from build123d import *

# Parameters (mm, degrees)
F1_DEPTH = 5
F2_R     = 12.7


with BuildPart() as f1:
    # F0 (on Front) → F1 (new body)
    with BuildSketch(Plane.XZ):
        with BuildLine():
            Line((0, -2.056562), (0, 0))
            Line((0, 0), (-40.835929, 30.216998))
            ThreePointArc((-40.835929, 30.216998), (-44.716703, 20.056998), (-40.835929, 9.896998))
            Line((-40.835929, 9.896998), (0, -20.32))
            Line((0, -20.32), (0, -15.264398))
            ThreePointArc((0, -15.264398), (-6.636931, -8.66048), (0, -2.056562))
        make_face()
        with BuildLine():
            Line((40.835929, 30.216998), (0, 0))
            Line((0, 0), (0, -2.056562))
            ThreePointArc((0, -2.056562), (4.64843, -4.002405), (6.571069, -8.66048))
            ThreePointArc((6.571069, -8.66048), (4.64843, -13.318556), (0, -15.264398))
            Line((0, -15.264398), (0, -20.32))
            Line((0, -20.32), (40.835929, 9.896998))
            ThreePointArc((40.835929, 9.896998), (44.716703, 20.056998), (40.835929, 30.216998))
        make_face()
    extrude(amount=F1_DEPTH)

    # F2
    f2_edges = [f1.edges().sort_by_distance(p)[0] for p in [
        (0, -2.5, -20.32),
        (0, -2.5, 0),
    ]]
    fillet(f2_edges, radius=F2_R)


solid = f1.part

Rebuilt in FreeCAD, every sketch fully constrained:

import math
import FreeCAD as App
import Part
import Sketcher
Q = App.Units.Quantity


def edges_at(feature, points):
    """Names of the edges that pass closest to the given points."""
    edges = feature.Shape.Edges
    near = lambda p: min(range(len(edges)), key=lambda i: edges[i].distToShape(Part.Vertex(*p))[0])
    return sorted({f"Edge{near(p) + 1}" for p in points})

doc = App.newDocument("Part")
body = doc.addObject("PartDesign::Body", "Body")

sketch1 = body.newObject("Sketcher::SketchObject", "Sketch")
sketch1.AttachmentSupport = (doc.getObject("XZ_Plane"), [""])
sketch1.MapMode = "FlatFace"
sketch1.addGeometry(Part.LineSegment(App.Vector(0, 0, 0), App.Vector(-40.835929, 30.216998, 0)), False)
sketch1.addGeometry(Part.ArcOfCircle(Part.Circle(App.Vector(-29.476701, 20.056998, 0), App.Vector(0, 0, 1), 15.240002), math.radians(138.189692), math.radians(221.810308)), False)
sketch1.addGeometry(Part.LineSegment(App.Vector(-40.835929, 9.896998, 0), App.Vector(0, -20.32, 0)), False)
sketch1.addGeometry(Part.LineSegment(App.Vector(0, -20.32, 0), App.Vector(40.835929, 9.896998, 0)), False)
sketch1.addGeometry(Part.ArcOfCircle(Part.Circle(App.Vector(29.476701, 20.056998, 0), App.Vector(0, 0, 1), 15.240002), math.radians(-41.810308), math.radians(41.810308)), False)
sketch1.addGeometry(Part.LineSegment(App.Vector(40.835929, 30.216998, 0), App.Vector(0, 0, 0)), False)
sketch1.addGeometry(Part.ArcOfCircle(Part.Circle(App.Vector(-0.032931, -8.66048, 0), App.Vector(0, 0, 1), 6.604), math.radians(89.714293), math.radians(270.285707)), False)
sketch1.addGeometry(Part.ArcOfCircle(Part.Circle(App.Vector(-0.032933, -8.660482, 0), App.Vector(0, 0, 1), 6.604002), math.radians(0.000021), math.radians(89.714271)), False)
sketch1.addGeometry(Part.ArcOfCircle(Part.Circle(App.Vector(-0.032932, -8.660479, 0), App.Vector(0, 0, 1), 6.604001), math.radians(-89.714285), math.radians(-0.000006)), False)
sketch1.addConstraint(Sketcher.Constraint("Coincident", 0, 2, 1, 1))
sketch1.addConstraint(Sketcher.Constraint("Coincident", 1, 2, 2, 1))
sketch1.addConstraint(Sketcher.Constraint("Coincident", 2, 2, 3, 1))
sketch1.addConstraint(Sketcher.Constraint("Coincident", 3, 2, 4, 1))
sketch1.addConstraint(Sketcher.Constraint("Coincident", 4, 2, 5, 1))
sketch1.addConstraint(Sketcher.Constraint("Coincident", 5, 2, 0, 1))
sketch1.addConstraint(Sketcher.Constraint("Tangent", 6, 1, 7, 2))
sketch1.addConstraint(Sketcher.Constraint("Tangent", 7, 1, 8, 2))
sketch1.addConstraint(Sketcher.Constraint("Tangent", 8, 1, 6, 2))
sketch1.addConstraint(Sketcher.Constraint("Coincident", 5, 2, -1, 1))
sketch1.addConstraint(Sketcher.Constraint("Equal", 1, 4))
sketch1.addConstraint(Sketcher.Constraint("Symmetric", 1, 3, 4, 3, -2))
sketch1.addConstraint(Sketcher.Constraint("PointOnObject", 2, 2, -2))
sketch1.addConstraint(Sketcher.Constraint("PointOnObject", 6, 1, -2))
sketch1.addConstraint(Sketcher.Constraint("PointOnObject", 8, 1, -2))
sketch1.addConstraint(Sketcher.Constraint("Parallel", 0, 2))
sketch1.addConstraint(Sketcher.Constraint("Parallel", 3, 5))
sketch1.addConstraint(Sketcher.Constraint("Horizontal", 1, 2, 3, 2))
sketch1.addConstraint(Sketcher.Constraint("Horizontal", 8, 3, 7, 1))
sketch1.addConstraint(Sketcher.Constraint("Vertical", 0, 2, 1, 2))
sketch1.addConstraint(Sketcher.Constraint("Radius", 1, Q("0.6000001 in")))
sketch1.addConstraint(Sketcher.Constraint("Radius", 6, Q("0.26 in")))
sketch1.addConstraint(Sketcher.Constraint("Distance", 0, Q("2 in")))
sketch1.addConstraint(Sketcher.Constraint("DistanceY", 2, 2, -1, 1, Q("0.8 in")))
sketch1.addConstraint(Sketcher.Constraint("Angle", 0, Q("143.5 deg")))
sketch1.addConstraint(Sketcher.Constraint("DistanceY", 8, 1, -1, 1, Q("15.264398 mm")))
sketch1.addConstraint(Sketcher.Constraint("DistanceX", 0, 2, 6, 3, Q("40.802998 mm")))
pad1 = body.newObject("PartDesign::Pad", "Pad")
pad1.Profile = sketch1
pad1.Length = 5
doc.recompute()

fillet = body.newObject("PartDesign::Fillet", "Fillet")
fillet.Base = (pad1, edges_at(pad1, [(0, -2.5, -20.32), (0, -2.5, 0)]))
fillet.Radius = Q("0.5 in")

doc.recompute()
